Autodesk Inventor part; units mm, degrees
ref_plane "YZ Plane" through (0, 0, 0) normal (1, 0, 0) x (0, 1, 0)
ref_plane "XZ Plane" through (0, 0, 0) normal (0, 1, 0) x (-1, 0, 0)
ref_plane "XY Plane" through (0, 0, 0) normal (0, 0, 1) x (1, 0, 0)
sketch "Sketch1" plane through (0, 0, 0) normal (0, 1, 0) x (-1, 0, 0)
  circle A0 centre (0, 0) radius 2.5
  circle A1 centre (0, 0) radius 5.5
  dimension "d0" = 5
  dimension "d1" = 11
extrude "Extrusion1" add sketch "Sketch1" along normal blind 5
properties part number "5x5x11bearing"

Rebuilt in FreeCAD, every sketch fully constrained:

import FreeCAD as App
import Part
import Sketcher
Q = App.Units.Quantity

doc = App.newDocument("Part")
body = doc.addObject("PartDesign::Body", "Body")

# Sketch on XZ plane
sketch1 = doc.addObject("Sketcher::SketchObject", "Sketch")
body.addObject(sketch1)
sketch1.AttachmentSupport = (doc.XZ_Plane, [""])
sketch1.MapMode = "FlatFace"
sketch1.addGeometry([
    Part.Circle(App.Vector(0, 0, 0), App.Vector(0, 0, 1), 5.5),
    Part.Circle(App.Vector(0, 0, 0), App.Vector(0, 0, 1), 2.5),
], False)
sketch1.addConstraint([
    Sketcher.Constraint("Coincident", 0, 3, -1, 1),
    Sketcher.Constraint("Coincident", 1, 3, -1, 1),
    Sketcher.Constraint("Diameter", 0, Q("11 mm")),
    Sketcher.Constraint("Diameter", 1, Q("5 mm")),
])
pad1 = doc.addObject("PartDesign::Pad", "Pad")
body.addObject(pad1)
pad1.Profile = sketch1
pad1.Length = 5
pad1.Reversed = True

doc.recompute()
